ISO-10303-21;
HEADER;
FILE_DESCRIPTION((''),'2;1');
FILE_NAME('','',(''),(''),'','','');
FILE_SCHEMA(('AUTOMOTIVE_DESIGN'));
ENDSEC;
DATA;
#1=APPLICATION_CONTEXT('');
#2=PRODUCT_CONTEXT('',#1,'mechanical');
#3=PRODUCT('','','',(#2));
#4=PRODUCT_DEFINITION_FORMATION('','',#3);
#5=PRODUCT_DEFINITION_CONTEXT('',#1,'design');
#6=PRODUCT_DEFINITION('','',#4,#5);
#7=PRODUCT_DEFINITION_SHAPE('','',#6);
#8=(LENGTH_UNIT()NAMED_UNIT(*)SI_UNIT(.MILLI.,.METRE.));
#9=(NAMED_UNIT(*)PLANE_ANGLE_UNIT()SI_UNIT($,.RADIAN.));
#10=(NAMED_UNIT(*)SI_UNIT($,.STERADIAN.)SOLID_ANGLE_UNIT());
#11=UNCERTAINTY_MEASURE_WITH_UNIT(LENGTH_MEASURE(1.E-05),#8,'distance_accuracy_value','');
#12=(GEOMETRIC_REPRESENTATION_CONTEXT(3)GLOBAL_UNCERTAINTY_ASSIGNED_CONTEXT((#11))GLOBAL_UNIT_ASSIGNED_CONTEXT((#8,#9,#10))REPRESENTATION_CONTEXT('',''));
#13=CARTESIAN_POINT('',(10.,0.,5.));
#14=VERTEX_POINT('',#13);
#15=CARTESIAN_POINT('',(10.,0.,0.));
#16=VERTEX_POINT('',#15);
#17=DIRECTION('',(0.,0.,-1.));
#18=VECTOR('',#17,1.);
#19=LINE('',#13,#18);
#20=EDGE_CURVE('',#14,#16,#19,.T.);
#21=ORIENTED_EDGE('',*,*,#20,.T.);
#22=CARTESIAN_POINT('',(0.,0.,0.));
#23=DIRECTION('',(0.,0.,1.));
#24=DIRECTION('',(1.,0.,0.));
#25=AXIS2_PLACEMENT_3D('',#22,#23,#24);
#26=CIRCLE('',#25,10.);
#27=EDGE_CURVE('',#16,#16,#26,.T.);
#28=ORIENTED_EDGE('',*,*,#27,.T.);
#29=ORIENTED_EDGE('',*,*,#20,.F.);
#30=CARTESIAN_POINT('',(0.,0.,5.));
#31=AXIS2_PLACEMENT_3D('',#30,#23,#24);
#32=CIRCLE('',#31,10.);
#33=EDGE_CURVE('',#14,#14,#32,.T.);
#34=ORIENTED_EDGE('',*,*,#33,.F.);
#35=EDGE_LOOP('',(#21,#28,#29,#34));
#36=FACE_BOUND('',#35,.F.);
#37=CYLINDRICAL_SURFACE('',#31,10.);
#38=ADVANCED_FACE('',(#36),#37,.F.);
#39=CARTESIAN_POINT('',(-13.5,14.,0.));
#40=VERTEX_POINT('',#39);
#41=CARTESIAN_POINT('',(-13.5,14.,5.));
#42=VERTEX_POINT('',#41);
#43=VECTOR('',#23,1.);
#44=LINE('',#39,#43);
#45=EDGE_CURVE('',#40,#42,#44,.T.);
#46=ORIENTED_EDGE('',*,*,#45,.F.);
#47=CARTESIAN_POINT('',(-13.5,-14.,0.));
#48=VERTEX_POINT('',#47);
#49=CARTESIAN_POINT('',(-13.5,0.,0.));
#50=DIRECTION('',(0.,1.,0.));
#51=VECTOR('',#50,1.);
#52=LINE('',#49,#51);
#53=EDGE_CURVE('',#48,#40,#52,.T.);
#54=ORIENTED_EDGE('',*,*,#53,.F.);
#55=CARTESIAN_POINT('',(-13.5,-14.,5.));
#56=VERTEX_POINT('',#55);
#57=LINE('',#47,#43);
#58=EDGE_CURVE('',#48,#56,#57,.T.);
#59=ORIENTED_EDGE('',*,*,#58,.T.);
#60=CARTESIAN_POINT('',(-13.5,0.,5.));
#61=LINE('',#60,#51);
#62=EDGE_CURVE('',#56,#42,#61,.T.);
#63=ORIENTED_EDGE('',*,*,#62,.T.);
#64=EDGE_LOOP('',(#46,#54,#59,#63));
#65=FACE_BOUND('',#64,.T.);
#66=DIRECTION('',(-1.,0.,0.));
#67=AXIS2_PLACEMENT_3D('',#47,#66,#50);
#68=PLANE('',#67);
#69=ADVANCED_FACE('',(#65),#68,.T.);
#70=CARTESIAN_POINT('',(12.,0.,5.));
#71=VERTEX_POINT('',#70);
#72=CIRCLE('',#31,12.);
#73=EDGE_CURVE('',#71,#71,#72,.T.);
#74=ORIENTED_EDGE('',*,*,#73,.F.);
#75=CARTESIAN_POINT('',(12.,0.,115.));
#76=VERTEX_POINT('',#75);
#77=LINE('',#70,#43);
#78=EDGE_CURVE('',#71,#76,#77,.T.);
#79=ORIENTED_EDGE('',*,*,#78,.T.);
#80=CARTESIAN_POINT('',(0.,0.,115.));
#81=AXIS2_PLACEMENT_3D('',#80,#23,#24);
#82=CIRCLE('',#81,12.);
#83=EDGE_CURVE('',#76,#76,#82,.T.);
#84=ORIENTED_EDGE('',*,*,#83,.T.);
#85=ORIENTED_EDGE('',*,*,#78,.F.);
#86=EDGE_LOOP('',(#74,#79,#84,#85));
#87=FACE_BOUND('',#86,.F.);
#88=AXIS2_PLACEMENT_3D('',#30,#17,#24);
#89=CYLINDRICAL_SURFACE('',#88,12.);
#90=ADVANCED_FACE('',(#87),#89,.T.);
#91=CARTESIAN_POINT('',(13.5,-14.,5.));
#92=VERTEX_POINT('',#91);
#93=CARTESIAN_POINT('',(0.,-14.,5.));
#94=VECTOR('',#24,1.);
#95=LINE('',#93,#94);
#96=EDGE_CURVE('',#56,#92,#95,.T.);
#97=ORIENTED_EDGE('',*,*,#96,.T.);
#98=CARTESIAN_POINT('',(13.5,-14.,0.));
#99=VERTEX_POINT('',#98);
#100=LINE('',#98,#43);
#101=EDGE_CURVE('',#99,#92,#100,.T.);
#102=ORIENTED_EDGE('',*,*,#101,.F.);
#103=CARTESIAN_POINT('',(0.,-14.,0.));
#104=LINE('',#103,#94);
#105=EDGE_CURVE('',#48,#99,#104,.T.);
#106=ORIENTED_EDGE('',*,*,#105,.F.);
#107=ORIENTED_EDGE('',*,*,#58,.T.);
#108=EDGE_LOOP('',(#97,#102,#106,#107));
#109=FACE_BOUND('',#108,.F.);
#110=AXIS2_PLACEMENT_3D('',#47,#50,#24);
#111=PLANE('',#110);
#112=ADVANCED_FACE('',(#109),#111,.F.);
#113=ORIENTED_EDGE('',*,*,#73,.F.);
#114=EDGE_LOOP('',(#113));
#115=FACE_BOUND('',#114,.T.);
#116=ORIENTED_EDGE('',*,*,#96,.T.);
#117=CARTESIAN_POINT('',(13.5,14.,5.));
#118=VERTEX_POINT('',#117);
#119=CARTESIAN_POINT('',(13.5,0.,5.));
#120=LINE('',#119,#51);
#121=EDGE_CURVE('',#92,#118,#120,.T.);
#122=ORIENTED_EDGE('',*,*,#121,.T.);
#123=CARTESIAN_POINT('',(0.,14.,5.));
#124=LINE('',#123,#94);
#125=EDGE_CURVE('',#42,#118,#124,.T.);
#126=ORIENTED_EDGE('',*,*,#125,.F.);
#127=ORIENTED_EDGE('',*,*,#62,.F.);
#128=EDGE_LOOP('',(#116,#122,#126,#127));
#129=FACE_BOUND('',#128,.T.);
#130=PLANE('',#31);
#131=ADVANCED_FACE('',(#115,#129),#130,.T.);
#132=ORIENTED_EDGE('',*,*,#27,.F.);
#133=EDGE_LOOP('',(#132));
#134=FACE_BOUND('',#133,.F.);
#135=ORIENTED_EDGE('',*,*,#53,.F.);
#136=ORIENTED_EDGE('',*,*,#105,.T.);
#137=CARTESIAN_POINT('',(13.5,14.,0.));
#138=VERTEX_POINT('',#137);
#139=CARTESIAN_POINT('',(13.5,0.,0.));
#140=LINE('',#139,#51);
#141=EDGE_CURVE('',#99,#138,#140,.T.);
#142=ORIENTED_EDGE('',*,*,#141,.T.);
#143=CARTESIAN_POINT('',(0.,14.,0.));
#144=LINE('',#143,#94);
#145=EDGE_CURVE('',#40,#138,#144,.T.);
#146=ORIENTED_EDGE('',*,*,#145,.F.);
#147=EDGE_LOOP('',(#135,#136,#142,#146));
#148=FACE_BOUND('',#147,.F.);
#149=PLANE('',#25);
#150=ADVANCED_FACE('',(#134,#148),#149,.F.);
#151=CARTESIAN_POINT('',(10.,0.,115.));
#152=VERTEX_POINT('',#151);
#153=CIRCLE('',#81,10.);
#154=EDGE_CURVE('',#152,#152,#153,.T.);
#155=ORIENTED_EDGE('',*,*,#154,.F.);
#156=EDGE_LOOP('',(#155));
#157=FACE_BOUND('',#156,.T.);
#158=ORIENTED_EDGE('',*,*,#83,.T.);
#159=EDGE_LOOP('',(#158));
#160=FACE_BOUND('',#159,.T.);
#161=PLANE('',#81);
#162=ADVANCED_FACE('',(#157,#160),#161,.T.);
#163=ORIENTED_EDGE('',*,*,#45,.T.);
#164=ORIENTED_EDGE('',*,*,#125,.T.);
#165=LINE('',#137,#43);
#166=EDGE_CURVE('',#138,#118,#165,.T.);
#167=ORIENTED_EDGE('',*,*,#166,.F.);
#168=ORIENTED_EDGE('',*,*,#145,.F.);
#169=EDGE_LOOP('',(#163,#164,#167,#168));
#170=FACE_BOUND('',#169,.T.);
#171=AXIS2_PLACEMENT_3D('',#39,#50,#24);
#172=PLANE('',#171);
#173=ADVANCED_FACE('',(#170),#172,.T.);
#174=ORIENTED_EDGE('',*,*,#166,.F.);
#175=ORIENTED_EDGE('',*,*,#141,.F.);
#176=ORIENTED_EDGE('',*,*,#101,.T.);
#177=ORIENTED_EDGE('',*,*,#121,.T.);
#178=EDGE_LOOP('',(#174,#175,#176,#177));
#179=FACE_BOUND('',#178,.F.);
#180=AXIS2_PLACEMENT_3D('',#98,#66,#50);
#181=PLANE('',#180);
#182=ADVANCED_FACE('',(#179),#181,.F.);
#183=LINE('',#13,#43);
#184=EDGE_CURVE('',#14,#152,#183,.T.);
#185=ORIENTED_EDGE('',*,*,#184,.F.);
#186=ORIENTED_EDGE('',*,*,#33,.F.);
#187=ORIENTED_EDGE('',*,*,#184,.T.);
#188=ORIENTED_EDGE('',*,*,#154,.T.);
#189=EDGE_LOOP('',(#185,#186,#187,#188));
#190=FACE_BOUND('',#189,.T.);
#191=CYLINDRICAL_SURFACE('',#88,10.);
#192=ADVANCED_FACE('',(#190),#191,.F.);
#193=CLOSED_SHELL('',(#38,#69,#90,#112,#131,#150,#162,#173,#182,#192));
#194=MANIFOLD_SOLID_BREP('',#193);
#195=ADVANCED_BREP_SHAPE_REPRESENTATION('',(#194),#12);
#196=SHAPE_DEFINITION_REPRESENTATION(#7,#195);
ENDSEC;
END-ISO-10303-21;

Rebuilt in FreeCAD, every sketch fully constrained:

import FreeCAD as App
import Part
import Sketcher
from FreeCAD import Vector


def add_polygon(sketch, points):
    """Adds a closed chain of lines whose ends are joined by coincident constraints."""
    first, n = sketch.GeometryCount, len(points)
    for a, b in zip(points, points[1:] + points[:1]):
        sketch.addGeometry(Part.LineSegment(App.Vector(*a, 0), App.Vector(*b, 0)), False)
    for i in range(n):
        sketch.addConstraint(Sketcher.Constraint("Coincident", first + i, 2, first + (i + 1) % n, 1))

doc = App.newDocument("Part")
body = doc.addObject("PartDesign::Body", "Body")

# Sketch on XY plane
sketch1 = body.newObject("Sketcher::SketchObject", "Sketch")
sketch1.AttachmentSupport = (doc.getObject("XY_Plane"), [""])
sketch1.MapMode = "FlatFace"
add_polygon(sketch1, [(-14, 14), (-14, -14), (14, -14), (14, 14)])  # lines 0-3
sketch1.addConstraint([
    Sketcher.Constraint("Vertical", 0),
    Sketcher.Constraint("Horizontal", 1),
    Sketcher.Constraint("Vertical", 2),
    Sketcher.Constraint("Horizontal", 3),
    Sketcher.Constraint("Symmetric", 0, 2, 2, 2, -1, 1),
    Sketcher.Constraint("DistanceX", 1, 1, 1, 2, 27.0),
    Sketcher.Constraint("DistanceY", 0, 2, 0, 1, 28.0),
])
pad1 = body.newObject("PartDesign::Pad", "Pad")
pad1.Profile = sketch1
pad1.Length = 5

# Sketch on XY plane
sketch2 = body.newObject("Sketcher::SketchObject", "Sketch001")
sketch2.AttachmentSupport = (doc.getObject("XY_Plane"), [""])
sketch2.MapMode = "FlatFace"
sketch2.AttachmentOffset = App.Placement(Vector(0, 0, 5), App.Rotation())
sketch2.addGeometry([
    Part.Circle(Vector(0, 0, 0), Vector(0, 0, 1), 12),
    Part.Circle(Vector(0, 0, 0), Vector(0, 0, 1), 10),
], False)
sketch2.addConstraint([
    Sketcher.Constraint("Coincident", 0, 3, -1, 1),
    Sketcher.Constraint("Coincident", 1, 3, -1, 1),
    Sketcher.Constraint("Diameter", 0, 24.0),
    Sketcher.Constraint("Diameter", 1, 20.0),
])
pad2 = body.newObject("PartDesign::Pad", "Pad001")
pad2.Profile = sketch2
pad2.Length = 110

# Sketch on XY plane
sketch3 = body.newObject("Sketcher::SketchObject", "Sketch002")
sketch3.AttachmentSupport = (doc.getObject("XY_Plane"), [""])
sketch3.MapMode = "FlatFace"
sketch3.AttachmentOffset = App.Placement(Vector(0, 0, 5), App.Rotation())
sketch3.addGeometry(Part.Circle(Vector(0, 0, 0), Vector(0, 0, 1), 10), False)
sketch3.addConstraint([
    Sketcher.Constraint("Coincident", 0, 3, -1, 1),
    Sketcher.Constraint("Diameter", 0, 20.0),
])
pocket1 = body.newObject("PartDesign::Pocket", "Pocket")
pocket1.Profile = sketch3
pocket1.Type = "ThroughAll"

doc.recompute()
